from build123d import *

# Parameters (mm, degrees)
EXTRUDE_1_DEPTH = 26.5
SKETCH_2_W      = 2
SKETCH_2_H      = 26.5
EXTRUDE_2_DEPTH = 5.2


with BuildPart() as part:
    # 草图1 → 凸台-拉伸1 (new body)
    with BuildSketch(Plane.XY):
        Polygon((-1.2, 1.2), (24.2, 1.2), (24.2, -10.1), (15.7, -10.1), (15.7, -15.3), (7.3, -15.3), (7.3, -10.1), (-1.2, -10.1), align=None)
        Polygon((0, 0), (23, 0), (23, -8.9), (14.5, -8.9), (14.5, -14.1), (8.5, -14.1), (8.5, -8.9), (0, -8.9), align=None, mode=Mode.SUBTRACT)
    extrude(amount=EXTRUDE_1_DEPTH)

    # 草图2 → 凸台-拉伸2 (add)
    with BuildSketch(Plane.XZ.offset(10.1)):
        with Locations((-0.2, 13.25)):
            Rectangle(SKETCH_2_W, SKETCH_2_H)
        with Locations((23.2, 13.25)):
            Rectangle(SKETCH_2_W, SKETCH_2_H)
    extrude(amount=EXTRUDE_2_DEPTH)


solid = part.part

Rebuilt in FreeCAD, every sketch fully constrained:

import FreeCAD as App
import Part
import Sketcher

V = App.Vector
Q = App.Units.Quantity

doc = App.newDocument("Part")
body = doc.addObject("PartDesign::Body", "Body")

# Sketch on XY plane
sketch1 = body.newObject("Sketcher::SketchObject", "Sketch")
sketch1.AttachmentSupport = (doc.getObject("XY_Plane"), [""])
sketch1.MapMode = "FlatFace"
sketch1.addGeometry(Part.LineSegment(V(24, 1, 0), V(-1, 1, 0)), False)
sketch1.addGeometry(Part.LineSegment(V(-1, 1, 0), V(-1, -10, 0)), False)
sketch1.addGeometry(Part.LineSegment(V(-1, -10, 0), V(7, -10, 0)), False)
sketch1.addGeometry(Part.LineSegment(V(7, -10, 0), V(7, -15, 0)), False)
sketch1.addGeometry(Part.LineSegment(V(7, -15, 0), V(16, -15, 0)), False)
sketch1.addGeometry(Part.LineSegment(V(16, -15, 0), V(16, -10, 0)), False)
sketch1.addGeometry(Part.LineSegment(V(16, -10, 0), V(24, -10, 0)), False)
sketch1.addGeometry(Part.LineSegment(V(24, -10, 0), V(24, 1, 0)), False)
sketch1.addGeometry(Part.LineSegment(V(0, 0, 0), V(23, 0, 0)), False)
sketch1.addGeometry(Part.LineSegment(V(23, 0, 0), V(23, -9, 0)), False)
sketch1.addGeometry(Part.LineSegment(V(23, -9, 0), V(14, -9, 0)), False)
sketch1.addGeometry(Part.LineSegment(V(14, -9, 0), V(14, -14, 0)), False)
sketch1.addGeometry(Part.LineSegment(V(14, -14, 0), V(8, -14, 0)), False)
sketch1.addGeometry(Part.LineSegment(V(8, -14, 0), V(8, -9, 0)), False)
sketch1.addGeometry(Part.LineSegment(V(8, -9, 0), V(0, -9, 0)), False)
sketch1.addGeometry(Part.LineSegment(V(0, -9, 0), V(0, 0, 0)), False)
sketch1.addConstraint(Sketcher.Constraint("Coincident", 0, 2, 1, 1))
sketch1.addConstraint(Sketcher.Constraint("Coincident", 1, 2, 2, 1))
sketch1.addConstraint(Sketcher.Constraint("Coincident", 2, 2, 3, 1))
sketch1.addConstraint(Sketcher.Constraint("Coincident", 3, 2, 4, 1))
sketch1.addConstraint(Sketcher.Constraint("Coincident", 4, 2, 5, 1))
sketch1.addConstraint(Sketcher.Constraint("Coincident", 5, 2, 6, 1))
sketch1.addConstraint(Sketcher.Constraint("Coincident", 6, 2, 7, 1))
sketch1.addConstraint(Sketcher.Constraint("Coincident", 7, 2, 0, 1))
sketch1.addConstraint(Sketcher.Constraint("Coincident", 8, 2, 9, 1))
sketch1.addConstraint(Sketcher.Constraint("Coincident", 9, 2, 10, 1))
sketch1.addConstraint(Sketcher.Constraint("Coincident", 10, 2, 11, 1))
sketch1.addConstraint(Sketcher.Constraint("Coincident", 11, 2, 12, 1))
sketch1.addConstraint(Sketcher.Constraint("Coincident", 12, 2, 13, 1))
sketch1.addConstraint(Sketcher.Constraint("Coincident", 13, 2, 14, 1))
sketch1.addConstraint(Sketcher.Constraint("Coincident", 14, 2, 15, 1))
sketch1.addConstraint(Sketcher.Constraint("Coincident", 15, 2, 8, 1))
sketch1.addConstraint(Sketcher.Constraint("Horizontal", 0))
sketch1.addConstraint(Sketcher.Constraint("Vertical", 1))
sketch1.addConstraint(Sketcher.Constraint("Horizontal", 2))
sketch1.addConstraint(Sketcher.Constraint("Vertical", 3))
sketch1.addConstraint(Sketcher.Constraint("Horizontal", 4))
sketch1.addConstraint(Sketcher.Constraint("Vertical", 5))
sketch1.addConstraint(Sketcher.Constraint("Horizontal", 6))
sketch1.addConstraint(Sketcher.Constraint("Vertical", 7))
sketch1.addConstraint(Sketcher.Constraint("Horizontal", 8))
sketch1.addConstraint(Sketcher.Constraint("Vertical", 9))
sketch1.addConstraint(Sketcher.Constraint("Horizontal", 10))
sketch1.addConstraint(Sketcher.Constraint("Vertical", 11))
sketch1.addConstraint(Sketcher.Constraint("Horizontal", 12))
sketch1.addConstraint(Sketcher.Constraint("Vertical", 13))
sketch1.addConstraint(Sketcher.Constraint("Horizontal", 14))
sketch1.addConstraint(Sketcher.Constraint("Vertical", 15))
sketch1.addConstraint(Sketcher.Constraint("Coincident", 15, 2, -1, 1))
sketch1.addConstraint(Sketcher.Constraint("Horizontal", 2, 2, 5, 2))
sketch1.addConstraint(Sketcher.Constraint("Horizontal", 10, 2, 13, 2))
sketch1.addConstraint(Sketcher.Constraint("Equal", 2, 6))
sketch1.addConstraint(Sketcher.Constraint("Equal", 6, 10))
sketch1.addConstraint(Sketcher.Constraint("Equal", 10, 14))
sketch1.addConstraint(Sketcher.Constraint("Equal", 5, 11))
sketch1.addConstraint(Sketcher.Constraint("DistanceX", 8, 1, 8, 2, Q("23 mm")))
sketch1.addConstraint(Sketcher.Constraint("DistanceX", 12, 2, 12, 1, Q("6 mm")))
sketch1.addConstraint(Sketcher.Constraint("DistanceX", 0, 2, 0, 1, Q("25.4 mm")))
sketch1.addConstraint(Sketcher.Constraint("DistanceY", 1, 2, 1, 1, Q("11.3 mm")))
sketch1.addConstraint(Sketcher.Constraint("DistanceY", 3, 2, 3, 1, Q("5.2 mm")))
sketch1.addConstraint(Sketcher.Constraint("DistanceY", 9, 2, 9, 1, Q("8.9 mm")))
sketch1.addConstraint(Sketcher.Constraint("DistanceY", 11, 2, 5, 2, Q("4 mm")))
sketch1.addConstraint(Sketcher.Constraint("DistanceX", 0, 2, -1, 1, Q("1.2 mm")))
pad1 = body.newObject("PartDesign::Pad", "Pad")
pad1.Profile = sketch1
pad1.Length = 26.5

# Sketch on XZ plane
sketch2 = body.newObject("Sketcher::SketchObject", "Sketch001")
sketch2.AttachmentSupport = (doc.getObject("XZ_Plane"), [""])
sketch2.MapMode = "FlatFace"
sketch2.AttachmentOffset = App.Placement(V(0, 0, 10.1), App.Rotation())
sketch2.addGeometry(Part.LineSegment(V(-1.2, 26.5, 0), V(-1.2, 0, 0)), False)
sketch2.addGeometry(Part.LineSegment(V(-1.2, 0, 0), V(0.8, 0, 0)), False)
sketch2.addGeometry(Part.LineSegment(V(0.8, 0, 0), V(0.8, 26.5, 0)), False)
sketch2.addGeometry(Part.LineSegment(V(0.8, 26.5, 0), V(-1.2, 26.5, 0)), False)
sketch2.addGeometry(Part.LineSegment(V(22.2, 26.5, 0), V(22.2, 0, 0)), False)
sketch2.addGeometry(Part.LineSegment(V(22.2, 0, 0), V(24.2, 0, 0)), False)
sketch2.addGeometry(Part.LineSegment(V(24.2, 0, 0), V(24.2, 26.5, 0)), False)
sketch2.addGeometry(Part.LineSegment(V(24.2, 26.5, 0), V(22.2, 26.5, 0)), False)
sketch2.addConstraint(Sketcher.Constraint("Coincident", 0, 2, 1, 1))
sketch2.addConstraint(Sketcher.Constraint("Coincident", 1, 2, 2, 1))
sketch2.addConstraint(Sketcher.Constraint("Coincident", 2, 2, 3, 1))
sketch2.addConstraint(Sketcher.Constraint("Coincident", 3, 2, 0, 1))
sketch2.addConstraint(Sketcher.Constraint("Coincident", 4, 2, 5, 1))
sketch2.addConstraint(Sketcher.Constraint("Coincident", 5, 2, 6, 1))
sketch2.addConstraint(Sketcher.Constraint("Coincident", 6, 2, 7, 1))
sketch2.addConstraint(Sketcher.Constraint("Coincident", 7, 2, 4, 1))
sketch2.addConstraint(Sketcher.Constraint("Vertical", 0))
sketch2.addConstraint(Sketcher.Constraint("Horizontal", 1))
sketch2.addConstraint(Sketcher.Constraint("Vertical", 2))
sketch2.addConstraint(Sketcher.Constraint("Horizontal", 3))
sketch2.addConstraint(Sketcher.Constraint("Vertical", 4))
sketch2.addConstraint(Sketcher.Constraint("Horizontal", 5))
sketch2.addConstraint(Sketcher.Constraint("Vertical", 6))
sketch2.addConstraint(Sketcher.Constraint("Horizontal", 7))
sketch2.addConstraint(Sketcher.Constraint("PointOnObject", 0, 2, -1))
sketch2.addConstraint(Sketcher.Constraint("PointOnObject", 4, 2, -1))
sketch2.addConstraint(Sketcher.Constraint("Horizontal", 3, 2, 6, 2))
sketch2.addConstraint(Sketcher.Constraint("Equal", 3, 5))
sketch2.addConstraint(Sketcher.Constraint("DistanceX", 1, 1, 1, 2, Q("2 mm")))
sketch2.addConstraint(Sketcher.Constraint("DistanceY", 0, 2, 0, 1, Q("26.5 mm")))
sketch2.addConstraint(Sketcher.Constraint("DistanceX", 0, 2, -1, 1, Q("1.2 mm")))
sketch2.addConstraint(Sketcher.Constraint("DistanceX", -1, 1, 4, 2, Q("22.2 mm")))
pad2 = body.newObject("PartDesign::Pad", "Pad001")
pad2.Profile = sketch2
pad2.Length = 5.2

doc.recompute()
